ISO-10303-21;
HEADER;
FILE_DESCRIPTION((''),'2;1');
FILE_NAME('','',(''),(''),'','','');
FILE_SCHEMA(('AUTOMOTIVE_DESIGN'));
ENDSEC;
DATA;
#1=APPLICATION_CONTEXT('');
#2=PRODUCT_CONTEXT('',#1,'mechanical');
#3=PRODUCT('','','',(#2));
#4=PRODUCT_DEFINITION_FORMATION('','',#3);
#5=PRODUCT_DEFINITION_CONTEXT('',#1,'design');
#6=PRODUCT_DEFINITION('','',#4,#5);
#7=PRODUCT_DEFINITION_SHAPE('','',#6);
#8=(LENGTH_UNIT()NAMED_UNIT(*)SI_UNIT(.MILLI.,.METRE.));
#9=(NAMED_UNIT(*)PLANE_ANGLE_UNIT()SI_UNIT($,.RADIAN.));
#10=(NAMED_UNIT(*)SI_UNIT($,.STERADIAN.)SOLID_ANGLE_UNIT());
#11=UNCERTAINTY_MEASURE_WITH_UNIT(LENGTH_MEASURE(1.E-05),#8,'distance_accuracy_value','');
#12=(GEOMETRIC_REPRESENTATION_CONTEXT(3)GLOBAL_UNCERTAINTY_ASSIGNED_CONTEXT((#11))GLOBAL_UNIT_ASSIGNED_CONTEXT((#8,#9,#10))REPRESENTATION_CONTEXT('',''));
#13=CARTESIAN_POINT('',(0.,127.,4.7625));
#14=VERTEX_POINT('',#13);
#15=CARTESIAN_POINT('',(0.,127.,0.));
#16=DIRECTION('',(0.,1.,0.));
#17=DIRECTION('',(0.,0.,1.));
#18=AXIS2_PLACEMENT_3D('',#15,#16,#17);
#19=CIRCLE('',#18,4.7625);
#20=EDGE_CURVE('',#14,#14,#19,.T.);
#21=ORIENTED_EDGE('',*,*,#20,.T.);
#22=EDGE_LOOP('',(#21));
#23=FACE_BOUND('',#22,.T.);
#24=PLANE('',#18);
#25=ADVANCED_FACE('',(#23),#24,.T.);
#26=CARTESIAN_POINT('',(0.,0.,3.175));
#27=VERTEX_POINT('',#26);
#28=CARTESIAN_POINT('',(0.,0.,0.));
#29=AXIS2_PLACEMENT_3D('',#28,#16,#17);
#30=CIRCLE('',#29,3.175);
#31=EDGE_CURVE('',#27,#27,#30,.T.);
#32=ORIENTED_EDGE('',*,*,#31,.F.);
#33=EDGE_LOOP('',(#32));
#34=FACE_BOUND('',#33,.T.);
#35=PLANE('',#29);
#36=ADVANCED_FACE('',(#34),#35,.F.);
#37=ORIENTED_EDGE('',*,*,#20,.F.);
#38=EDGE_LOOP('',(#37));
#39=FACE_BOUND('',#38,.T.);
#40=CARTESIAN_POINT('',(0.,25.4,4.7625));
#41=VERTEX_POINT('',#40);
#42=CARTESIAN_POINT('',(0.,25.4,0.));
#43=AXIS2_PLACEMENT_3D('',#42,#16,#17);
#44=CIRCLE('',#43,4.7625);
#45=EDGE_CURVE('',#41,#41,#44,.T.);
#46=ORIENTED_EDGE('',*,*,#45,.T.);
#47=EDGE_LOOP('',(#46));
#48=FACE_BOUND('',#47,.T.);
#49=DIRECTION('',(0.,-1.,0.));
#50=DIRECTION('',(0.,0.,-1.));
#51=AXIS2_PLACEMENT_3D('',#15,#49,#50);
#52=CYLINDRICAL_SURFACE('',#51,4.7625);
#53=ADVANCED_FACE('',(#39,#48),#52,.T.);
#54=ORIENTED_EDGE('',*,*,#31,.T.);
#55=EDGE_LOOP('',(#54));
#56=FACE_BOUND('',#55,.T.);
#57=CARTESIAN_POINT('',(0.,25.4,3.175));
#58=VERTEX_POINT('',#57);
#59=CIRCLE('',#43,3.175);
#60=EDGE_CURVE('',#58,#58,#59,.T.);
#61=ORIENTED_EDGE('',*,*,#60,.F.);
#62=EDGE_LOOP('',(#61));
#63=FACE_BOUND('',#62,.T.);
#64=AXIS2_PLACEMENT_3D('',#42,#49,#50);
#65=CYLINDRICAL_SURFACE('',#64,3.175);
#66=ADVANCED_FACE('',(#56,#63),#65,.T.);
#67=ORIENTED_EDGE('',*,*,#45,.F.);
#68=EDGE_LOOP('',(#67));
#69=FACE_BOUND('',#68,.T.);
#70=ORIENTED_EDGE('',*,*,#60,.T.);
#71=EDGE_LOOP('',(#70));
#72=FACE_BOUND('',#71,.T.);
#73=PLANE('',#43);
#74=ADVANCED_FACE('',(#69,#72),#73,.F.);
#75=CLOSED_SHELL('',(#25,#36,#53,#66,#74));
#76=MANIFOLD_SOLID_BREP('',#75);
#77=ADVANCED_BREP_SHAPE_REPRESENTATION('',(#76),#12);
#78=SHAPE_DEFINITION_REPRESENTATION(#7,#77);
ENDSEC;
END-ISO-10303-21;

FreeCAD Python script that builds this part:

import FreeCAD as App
import Part
import Sketcher
from FreeCAD import Vector
Q = App.Units.Quantity

doc = App.newDocument("Part")
params = doc.addObject("Spreadsheet::Sheet", "Params")
for row, (alias, value) in enumerate([
    ("sketch1_diameter", "0.25 in"),
    ("pad1_length", "1 in"),
    ("sketch2_diameter", "0.375 in"),
    ("pad2_length", "4 in"),
], start=1):
    params.set(f"A{row}", alias)
    params.set(f"B{row}", "=" + value)
    params.setAlias(f"B{row}", alias)

body = doc.addObject("PartDesign::Body", "Body")

sketch1 = body.newObject("Sketcher::SketchObject", "Sketch")
sketch1.AttachmentSupport = (doc.getObject("XZ_Plane"), [""])
sketch1.MapMode = "FlatFace"
sketch1.addGeometry(Part.Circle(Vector(0, 0, 0), Vector(0, 0, 1), 3.175), False)
sketch1.addConstraint([
    Sketcher.Constraint("Coincident", 0, 3, -1, 1),
    Sketcher.Constraint("Diameter", 0, Q("0.25 in")),
])
sketch1.setExpression("Constraints[1]", "Params.sketch1_diameter")
pad1 = body.newObject("PartDesign::Pad", "Pad")
pad1.Profile = sketch1
pad1.setExpression("Length", "Params.pad1_length")
pad1.Reversed = True

sketch2 = body.newObject("Sketcher::SketchObject", "Sketch001")
sketch2.AttachmentSupport = (doc.getObject("XZ_Plane"), [""])
sketch2.MapMode = "FlatFace"
sketch2.AttachmentOffset = App.Placement(Vector(0, 0, -1 * 25.4), App.Rotation())
sketch2.addGeometry(Part.Circle(Vector(0, 0, 0), Vector(0, 0, 1), 4.7625), False)
sketch2.addConstraint([
    Sketcher.Constraint("Coincident", 0, 3, -1, 1),
    Sketcher.Constraint("Diameter", 0, Q("0.375 in")),
])
sketch2.setExpression("Constraints[1]", "Params.sketch2_diameter")
pad2 = body.newObject("PartDesign::Pad", "Pad001")
pad2.Profile = sketch2
pad2.setExpression("Length", "Params.pad2_length")
pad2.Reversed = True

doc.recompute()
